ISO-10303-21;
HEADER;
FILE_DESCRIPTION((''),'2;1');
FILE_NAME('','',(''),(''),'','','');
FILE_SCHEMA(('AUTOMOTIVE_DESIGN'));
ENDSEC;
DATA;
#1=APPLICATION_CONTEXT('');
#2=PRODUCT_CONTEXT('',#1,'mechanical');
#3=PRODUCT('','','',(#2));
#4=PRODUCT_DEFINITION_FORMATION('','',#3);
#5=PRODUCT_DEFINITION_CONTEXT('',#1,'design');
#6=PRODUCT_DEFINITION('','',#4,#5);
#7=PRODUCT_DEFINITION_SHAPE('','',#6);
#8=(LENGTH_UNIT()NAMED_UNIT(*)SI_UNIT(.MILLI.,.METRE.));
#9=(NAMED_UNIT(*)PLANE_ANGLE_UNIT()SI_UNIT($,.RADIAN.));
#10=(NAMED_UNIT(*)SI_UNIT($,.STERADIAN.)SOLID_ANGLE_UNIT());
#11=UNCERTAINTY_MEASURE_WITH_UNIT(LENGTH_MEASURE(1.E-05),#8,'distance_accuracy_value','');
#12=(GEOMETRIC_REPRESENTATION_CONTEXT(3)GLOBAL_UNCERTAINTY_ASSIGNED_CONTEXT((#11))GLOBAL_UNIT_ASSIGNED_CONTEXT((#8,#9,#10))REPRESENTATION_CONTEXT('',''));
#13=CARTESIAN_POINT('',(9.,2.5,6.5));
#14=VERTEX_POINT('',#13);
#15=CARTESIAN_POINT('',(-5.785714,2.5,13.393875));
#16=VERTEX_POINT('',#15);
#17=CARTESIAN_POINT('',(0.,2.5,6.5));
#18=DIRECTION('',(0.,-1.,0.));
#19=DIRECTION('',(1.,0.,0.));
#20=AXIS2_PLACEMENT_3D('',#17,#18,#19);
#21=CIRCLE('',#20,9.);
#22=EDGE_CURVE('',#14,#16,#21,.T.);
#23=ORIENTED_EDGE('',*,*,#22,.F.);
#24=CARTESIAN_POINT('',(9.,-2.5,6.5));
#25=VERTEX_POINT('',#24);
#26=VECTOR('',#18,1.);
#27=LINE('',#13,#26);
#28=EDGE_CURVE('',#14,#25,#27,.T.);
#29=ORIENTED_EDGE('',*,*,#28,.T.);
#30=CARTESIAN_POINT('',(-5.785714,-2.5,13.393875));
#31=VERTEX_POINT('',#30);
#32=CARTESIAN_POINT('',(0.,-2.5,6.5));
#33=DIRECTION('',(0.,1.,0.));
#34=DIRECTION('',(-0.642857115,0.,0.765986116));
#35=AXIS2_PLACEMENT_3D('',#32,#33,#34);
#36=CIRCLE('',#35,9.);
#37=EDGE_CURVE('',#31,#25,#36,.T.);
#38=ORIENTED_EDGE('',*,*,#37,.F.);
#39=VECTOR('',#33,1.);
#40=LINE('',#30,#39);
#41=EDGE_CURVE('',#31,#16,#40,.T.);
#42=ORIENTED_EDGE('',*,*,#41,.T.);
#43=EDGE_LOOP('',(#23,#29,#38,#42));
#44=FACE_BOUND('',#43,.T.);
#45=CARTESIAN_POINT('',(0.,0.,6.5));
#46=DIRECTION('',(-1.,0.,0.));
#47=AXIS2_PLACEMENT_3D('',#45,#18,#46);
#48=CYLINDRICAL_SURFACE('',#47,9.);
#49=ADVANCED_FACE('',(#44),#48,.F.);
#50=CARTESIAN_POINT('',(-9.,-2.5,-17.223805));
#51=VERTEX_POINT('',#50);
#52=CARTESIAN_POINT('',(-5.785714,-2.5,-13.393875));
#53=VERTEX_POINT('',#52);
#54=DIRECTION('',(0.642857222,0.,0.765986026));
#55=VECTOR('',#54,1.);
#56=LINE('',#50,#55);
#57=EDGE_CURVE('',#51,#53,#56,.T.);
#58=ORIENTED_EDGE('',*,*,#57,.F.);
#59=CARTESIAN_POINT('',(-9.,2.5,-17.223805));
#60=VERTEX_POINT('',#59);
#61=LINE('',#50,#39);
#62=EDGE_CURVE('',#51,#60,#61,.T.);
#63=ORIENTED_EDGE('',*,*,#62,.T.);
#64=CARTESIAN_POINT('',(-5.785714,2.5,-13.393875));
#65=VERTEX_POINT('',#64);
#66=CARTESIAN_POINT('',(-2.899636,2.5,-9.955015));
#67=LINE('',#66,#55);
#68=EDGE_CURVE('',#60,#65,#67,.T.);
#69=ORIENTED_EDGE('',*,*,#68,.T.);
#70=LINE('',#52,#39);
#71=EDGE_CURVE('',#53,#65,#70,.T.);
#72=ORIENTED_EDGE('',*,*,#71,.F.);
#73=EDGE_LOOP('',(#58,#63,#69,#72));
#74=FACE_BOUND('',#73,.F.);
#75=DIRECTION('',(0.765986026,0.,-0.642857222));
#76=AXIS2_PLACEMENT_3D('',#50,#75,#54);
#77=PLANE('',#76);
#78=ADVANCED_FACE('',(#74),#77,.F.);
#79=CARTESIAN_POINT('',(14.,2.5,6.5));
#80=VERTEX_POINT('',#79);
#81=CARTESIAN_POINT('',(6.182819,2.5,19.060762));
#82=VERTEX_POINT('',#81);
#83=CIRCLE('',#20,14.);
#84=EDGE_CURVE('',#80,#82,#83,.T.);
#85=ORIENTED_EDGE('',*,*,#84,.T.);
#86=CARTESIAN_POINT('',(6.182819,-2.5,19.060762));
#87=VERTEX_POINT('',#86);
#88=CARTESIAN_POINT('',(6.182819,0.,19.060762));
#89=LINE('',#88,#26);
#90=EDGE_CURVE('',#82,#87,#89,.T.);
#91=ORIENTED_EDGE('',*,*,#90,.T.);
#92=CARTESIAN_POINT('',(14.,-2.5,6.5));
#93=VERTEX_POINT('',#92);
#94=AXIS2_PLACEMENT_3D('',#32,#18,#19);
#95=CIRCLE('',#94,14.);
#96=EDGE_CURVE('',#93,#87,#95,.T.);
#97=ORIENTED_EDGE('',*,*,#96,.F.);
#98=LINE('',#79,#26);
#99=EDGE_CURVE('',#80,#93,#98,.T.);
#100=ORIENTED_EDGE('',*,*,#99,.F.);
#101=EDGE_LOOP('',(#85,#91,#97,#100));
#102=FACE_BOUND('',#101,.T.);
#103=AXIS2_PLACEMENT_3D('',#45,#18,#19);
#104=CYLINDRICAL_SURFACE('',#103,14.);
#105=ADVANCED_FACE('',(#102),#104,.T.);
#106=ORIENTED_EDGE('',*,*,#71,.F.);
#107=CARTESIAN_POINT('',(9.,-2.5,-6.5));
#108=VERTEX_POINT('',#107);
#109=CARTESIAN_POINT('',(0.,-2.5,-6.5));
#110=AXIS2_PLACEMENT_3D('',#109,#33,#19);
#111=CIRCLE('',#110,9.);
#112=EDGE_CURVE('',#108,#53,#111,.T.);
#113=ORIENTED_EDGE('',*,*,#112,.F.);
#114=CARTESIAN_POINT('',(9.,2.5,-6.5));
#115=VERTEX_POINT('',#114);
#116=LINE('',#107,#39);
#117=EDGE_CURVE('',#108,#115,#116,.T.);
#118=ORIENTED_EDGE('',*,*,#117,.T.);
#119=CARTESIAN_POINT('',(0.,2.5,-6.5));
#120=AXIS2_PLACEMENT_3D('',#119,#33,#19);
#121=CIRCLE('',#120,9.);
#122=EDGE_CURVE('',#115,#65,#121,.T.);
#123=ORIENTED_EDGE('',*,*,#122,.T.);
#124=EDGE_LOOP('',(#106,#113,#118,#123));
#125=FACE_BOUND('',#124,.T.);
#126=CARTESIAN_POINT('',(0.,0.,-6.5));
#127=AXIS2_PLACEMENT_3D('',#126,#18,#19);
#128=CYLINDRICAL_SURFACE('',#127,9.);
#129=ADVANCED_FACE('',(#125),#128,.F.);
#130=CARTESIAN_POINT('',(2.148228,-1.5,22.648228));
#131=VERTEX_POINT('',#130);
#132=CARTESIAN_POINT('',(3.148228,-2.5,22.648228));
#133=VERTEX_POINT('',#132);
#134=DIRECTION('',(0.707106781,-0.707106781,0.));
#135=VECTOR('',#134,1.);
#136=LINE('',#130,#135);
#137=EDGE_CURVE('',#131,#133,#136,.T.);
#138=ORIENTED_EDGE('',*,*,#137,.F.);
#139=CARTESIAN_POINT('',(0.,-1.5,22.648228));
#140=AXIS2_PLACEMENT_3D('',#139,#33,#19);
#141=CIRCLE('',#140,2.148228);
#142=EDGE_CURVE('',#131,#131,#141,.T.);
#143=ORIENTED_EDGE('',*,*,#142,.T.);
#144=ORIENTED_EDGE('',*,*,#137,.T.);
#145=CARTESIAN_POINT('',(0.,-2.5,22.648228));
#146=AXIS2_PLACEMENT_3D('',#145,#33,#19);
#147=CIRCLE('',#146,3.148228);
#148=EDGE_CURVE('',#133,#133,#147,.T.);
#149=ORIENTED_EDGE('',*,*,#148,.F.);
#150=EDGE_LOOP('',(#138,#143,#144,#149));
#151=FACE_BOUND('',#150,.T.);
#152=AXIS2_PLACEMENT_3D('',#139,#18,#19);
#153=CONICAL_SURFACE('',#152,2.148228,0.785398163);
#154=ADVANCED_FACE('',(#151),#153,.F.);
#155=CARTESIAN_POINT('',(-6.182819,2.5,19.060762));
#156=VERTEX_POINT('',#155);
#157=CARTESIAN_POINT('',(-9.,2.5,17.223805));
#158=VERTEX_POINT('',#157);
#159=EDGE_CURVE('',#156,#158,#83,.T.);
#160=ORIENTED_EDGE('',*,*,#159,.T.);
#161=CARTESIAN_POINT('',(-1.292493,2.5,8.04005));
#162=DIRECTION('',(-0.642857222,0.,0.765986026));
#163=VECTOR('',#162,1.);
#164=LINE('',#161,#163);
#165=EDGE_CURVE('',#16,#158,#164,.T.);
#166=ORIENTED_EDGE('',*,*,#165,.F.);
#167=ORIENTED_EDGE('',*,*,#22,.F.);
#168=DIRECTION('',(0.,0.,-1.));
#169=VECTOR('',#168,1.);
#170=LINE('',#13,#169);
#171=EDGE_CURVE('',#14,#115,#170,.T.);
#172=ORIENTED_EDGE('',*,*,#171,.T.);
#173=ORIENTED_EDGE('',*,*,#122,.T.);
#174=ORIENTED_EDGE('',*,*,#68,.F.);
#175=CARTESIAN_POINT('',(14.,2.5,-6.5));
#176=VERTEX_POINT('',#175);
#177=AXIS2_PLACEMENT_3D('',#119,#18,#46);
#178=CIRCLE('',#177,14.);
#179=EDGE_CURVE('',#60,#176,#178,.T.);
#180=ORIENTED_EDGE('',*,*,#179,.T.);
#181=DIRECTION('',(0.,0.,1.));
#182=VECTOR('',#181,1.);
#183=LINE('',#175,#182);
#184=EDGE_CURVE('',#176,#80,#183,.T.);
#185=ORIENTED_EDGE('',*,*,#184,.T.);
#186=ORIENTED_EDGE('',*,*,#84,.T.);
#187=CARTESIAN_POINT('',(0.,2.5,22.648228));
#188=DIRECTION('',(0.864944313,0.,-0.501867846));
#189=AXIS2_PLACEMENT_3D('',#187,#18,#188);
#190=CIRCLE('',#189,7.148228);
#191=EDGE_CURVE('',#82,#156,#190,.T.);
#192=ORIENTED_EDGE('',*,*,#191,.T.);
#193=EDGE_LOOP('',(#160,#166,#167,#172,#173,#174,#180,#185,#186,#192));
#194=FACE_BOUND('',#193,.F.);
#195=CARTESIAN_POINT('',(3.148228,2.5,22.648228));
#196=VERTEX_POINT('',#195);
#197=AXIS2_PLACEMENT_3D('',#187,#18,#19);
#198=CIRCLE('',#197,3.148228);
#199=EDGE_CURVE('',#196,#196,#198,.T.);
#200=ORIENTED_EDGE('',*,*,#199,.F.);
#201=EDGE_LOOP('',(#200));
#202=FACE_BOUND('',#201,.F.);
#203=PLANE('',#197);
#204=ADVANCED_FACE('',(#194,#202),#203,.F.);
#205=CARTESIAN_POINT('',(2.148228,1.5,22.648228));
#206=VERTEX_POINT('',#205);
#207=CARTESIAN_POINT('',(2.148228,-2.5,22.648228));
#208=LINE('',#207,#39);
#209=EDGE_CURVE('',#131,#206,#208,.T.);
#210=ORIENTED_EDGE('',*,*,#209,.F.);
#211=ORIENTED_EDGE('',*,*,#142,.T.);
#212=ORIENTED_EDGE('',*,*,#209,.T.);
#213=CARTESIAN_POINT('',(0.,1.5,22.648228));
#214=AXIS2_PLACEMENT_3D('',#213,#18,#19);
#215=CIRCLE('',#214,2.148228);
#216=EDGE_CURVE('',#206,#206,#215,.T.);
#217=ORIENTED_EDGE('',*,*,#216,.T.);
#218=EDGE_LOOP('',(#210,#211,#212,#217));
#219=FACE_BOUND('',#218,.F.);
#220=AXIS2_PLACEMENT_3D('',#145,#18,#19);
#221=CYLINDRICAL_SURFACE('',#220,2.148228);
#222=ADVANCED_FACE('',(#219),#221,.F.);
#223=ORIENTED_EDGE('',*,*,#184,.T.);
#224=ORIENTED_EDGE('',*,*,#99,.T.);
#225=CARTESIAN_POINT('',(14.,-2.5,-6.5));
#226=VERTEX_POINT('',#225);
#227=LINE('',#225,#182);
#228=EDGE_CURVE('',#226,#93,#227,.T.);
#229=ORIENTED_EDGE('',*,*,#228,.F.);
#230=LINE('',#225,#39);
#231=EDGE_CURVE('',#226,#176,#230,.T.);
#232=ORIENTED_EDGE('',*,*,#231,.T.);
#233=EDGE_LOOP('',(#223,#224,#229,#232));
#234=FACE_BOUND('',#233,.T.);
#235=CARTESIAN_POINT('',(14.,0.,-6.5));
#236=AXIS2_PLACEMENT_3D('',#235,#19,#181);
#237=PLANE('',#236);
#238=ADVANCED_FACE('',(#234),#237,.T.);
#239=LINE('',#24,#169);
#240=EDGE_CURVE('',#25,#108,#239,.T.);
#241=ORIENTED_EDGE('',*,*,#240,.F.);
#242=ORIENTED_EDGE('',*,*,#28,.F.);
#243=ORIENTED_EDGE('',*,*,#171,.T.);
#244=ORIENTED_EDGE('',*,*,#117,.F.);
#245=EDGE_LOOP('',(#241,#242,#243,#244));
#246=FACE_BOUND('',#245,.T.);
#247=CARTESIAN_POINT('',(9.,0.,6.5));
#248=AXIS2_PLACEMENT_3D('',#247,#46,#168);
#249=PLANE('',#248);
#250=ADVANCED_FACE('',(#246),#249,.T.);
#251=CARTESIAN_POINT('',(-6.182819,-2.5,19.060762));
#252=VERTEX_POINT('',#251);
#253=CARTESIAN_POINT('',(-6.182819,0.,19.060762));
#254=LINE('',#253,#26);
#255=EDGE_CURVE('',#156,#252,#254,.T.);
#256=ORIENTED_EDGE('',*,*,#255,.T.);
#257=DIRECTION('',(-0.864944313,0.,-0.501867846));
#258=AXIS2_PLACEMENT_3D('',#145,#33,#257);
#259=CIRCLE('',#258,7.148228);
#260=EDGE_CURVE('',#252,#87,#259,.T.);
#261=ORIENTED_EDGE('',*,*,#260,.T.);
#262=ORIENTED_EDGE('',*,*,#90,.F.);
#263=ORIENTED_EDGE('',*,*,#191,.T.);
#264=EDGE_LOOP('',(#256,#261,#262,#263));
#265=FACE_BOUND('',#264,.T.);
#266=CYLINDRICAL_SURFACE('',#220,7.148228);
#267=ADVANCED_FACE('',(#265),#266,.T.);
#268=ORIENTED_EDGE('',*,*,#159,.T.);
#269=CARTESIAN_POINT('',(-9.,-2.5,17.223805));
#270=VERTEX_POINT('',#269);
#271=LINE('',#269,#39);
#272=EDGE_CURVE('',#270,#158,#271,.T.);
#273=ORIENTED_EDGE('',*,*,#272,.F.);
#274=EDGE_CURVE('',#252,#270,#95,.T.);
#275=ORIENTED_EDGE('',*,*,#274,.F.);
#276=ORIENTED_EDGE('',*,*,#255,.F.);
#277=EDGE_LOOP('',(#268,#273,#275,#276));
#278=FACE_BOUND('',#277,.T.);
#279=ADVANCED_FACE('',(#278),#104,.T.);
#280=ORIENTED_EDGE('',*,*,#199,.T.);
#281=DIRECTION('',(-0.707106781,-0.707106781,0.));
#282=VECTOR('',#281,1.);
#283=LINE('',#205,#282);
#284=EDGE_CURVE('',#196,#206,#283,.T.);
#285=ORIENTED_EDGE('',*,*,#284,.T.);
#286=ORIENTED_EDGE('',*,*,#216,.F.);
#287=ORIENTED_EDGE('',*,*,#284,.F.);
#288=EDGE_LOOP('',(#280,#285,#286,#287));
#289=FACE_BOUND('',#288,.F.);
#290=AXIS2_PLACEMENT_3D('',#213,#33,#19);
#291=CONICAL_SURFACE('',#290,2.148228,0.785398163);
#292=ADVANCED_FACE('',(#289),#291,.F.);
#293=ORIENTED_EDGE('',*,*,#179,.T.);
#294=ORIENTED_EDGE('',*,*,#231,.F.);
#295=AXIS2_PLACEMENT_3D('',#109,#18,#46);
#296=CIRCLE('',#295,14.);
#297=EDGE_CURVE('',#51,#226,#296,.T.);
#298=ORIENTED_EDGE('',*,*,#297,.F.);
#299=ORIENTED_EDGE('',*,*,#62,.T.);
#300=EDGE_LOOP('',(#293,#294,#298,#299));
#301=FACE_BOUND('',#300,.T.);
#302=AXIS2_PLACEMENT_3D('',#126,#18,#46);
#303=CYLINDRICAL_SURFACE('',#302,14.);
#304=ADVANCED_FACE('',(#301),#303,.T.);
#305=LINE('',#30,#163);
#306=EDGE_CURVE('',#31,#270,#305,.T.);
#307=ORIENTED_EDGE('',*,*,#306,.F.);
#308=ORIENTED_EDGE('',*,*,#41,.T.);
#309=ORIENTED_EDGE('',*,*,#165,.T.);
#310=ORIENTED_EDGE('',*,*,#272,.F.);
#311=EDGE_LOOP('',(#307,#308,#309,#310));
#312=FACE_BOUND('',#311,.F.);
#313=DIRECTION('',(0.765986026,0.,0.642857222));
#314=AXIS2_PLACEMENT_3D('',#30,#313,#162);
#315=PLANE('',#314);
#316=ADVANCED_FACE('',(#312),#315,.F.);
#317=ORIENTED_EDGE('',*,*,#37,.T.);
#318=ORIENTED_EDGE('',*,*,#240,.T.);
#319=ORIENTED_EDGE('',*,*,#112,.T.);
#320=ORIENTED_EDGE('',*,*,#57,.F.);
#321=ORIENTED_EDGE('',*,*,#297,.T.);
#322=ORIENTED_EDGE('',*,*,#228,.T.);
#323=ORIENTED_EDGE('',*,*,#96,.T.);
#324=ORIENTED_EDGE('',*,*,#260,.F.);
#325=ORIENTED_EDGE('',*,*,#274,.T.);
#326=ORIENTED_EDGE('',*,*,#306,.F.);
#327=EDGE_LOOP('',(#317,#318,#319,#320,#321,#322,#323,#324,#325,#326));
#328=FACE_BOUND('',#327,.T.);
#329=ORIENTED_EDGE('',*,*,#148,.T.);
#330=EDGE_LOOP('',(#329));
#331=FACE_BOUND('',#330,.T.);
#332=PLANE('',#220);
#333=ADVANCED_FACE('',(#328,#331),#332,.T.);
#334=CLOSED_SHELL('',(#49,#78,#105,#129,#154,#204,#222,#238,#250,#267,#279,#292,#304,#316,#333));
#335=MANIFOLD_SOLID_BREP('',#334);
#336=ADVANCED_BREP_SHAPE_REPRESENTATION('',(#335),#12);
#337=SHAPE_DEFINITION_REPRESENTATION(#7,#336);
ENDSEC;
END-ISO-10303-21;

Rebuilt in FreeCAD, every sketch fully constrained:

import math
import FreeCAD as App
import Part
import Sketcher
Q = App.Units.Quantity


def edges_at(feature, points):
    """Names of the edges that pass closest to the given points."""
    edges = feature.Shape.Edges
    near = lambda p: min(range(len(edges)), key=lambda i: edges[i].distToShape(Part.Vertex(*p))[0])
    return sorted({f"Edge{near(p) + 1}" for p in points})

doc = App.newDocument("Part")
body = doc.addObject("PartDesign::Body", "Body")

# Sketch on XZ plane
sketch1 = doc.addObject("Sketcher::SketchObject", "Sketch")
body.addObject(sketch1)
sketch1.AttachmentSupport = (doc.XZ_Plane, [""])
sketch1.MapMode = "FlatFace"
sketch1.addGeometry(Part.LineSegment(App.Vector(14, -6.5, 0), App.Vector(14, 6.5, 0)), False)
sketch1.addGeometry(Part.ArcOfCircle(Part.Circle(App.Vector(0, 6.5, 0), App.Vector(0, 0, 1), 14), math.radians(0), math.radians(180)), False)
sketch1.addGeometry(Part.LineSegment(App.Vector(-14, 6.5, 0), App.Vector(-14, -6.5, 0)), False)
sketch1.addGeometry(Part.ArcOfCircle(Part.Circle(App.Vector(0, -6.5, 0), App.Vector(0, 0, 1), 14), math.radians(180), math.radians(360)), False)
sketch1.addGeometry(Part.ArcOfCircle(Part.Circle(App.Vector(0, 6.5, 0), App.Vector(0, 0, 1), 9), math.radians(0), math.radians(180)), False)
sketch1.addGeometry(Part.LineSegment(App.Vector(9, 6.5, 0), App.Vector(9, -6.5, 0)), False)
sketch1.addGeometry(Part.ArcOfCircle(Part.Circle(App.Vector(0, -6.5, 0), App.Vector(0, 0, 1), 9), math.radians(180), math.radians(360)), False)
sketch1.addGeometry(Part.LineSegment(App.Vector(-9, -6.5, 0), App.Vector(-9, 6.5, 0)), False)
sketch1.addConstraint(Sketcher.Constraint("Tangent", 0, 2, 1, 1))
sketch1.addConstraint(Sketcher.Constraint("Tangent", 1, 2, 2, 1))
sketch1.addConstraint(Sketcher.Constraint("Tangent", 2, 2, 3, 1))
sketch1.addConstraint(Sketcher.Constraint("Tangent", 3, 2, 0, 1))
sketch1.addConstraint(Sketcher.Constraint("Tangent", 4, 1, 5, 1))
sketch1.addConstraint(Sketcher.Constraint("Tangent", 5, 2, 6, 2))
sketch1.addConstraint(Sketcher.Constraint("Tangent", 6, 1, 7, 1))
sketch1.addConstraint(Sketcher.Constraint("Tangent", 7, 2, 4, 2))
sketch1.addConstraint(Sketcher.Constraint("Vertical", 0))
sketch1.addConstraint(Sketcher.Constraint("Vertical", 2))
sketch1.addConstraint(Sketcher.Constraint("Vertical", 5))
sketch1.addConstraint(Sketcher.Constraint("Vertical", 7))
sketch1.addConstraint(Sketcher.Constraint("Coincident", 4, 3, 1, 3))
sketch1.addConstraint(Sketcher.Constraint("Symmetric", 1, 3, 3, 3, -1, 1))
sketch1.addConstraint(Sketcher.Constraint("Horizontal", 6, 3, 2, 2))
sketch1.addConstraint(Sketcher.Constraint("Radius", 1, Q("14 mm")))
sketch1.addConstraint(Sketcher.Constraint("Radius", 4, Q("9 mm")))
sketch1.addConstraint(Sketcher.Constraint("DistanceY", 0, 1, 0, 2, Q("13 mm")))
pad1 = doc.addObject("PartDesign::Pad", "Pad")
body.addObject(pad1)
pad1.Profile = sketch1
pad1.Length = 5
pad1.Midplane = True

# Sketch on XZ plane
sketch2 = doc.addObject("Sketcher::SketchObject", "Sketch001")
body.addObject(sketch2)
sketch2.AttachmentSupport = (doc.XZ_Plane, [""])
sketch2.MapMode = "FlatFace"
sketch2.AttachmentOffset = App.Placement(App.Vector(0, 0, 2.5), App.Rotation())
sketch2.addGeometry(Part.LineSegment(App.Vector(-5.785714, 13.393875, 0), App.Vector(-9, 17.223805, 0)), False)
sketch2.addGeometry(Part.ArcOfCircle(Part.Circle(App.Vector(-0.000006, 6.500003, 0), App.Vector(0, 0, 1), 13.999994), math.radians(130.005189), math.radians(180.00001)), False)
sketch2.addGeometry(Part.LineSegment(App.Vector(-14, 6.5, 0), App.Vector(-14, -6.5, 0)), False)
sketch2.addGeometry(Part.ArcOfCircle(Part.Circle(App.Vector(-0.000006, -6.500003, 0), App.Vector(0, 0, 1), 13.999994), math.radians(179.99999), math.radians(229.994811)), False)
sketch2.addGeometry(Part.LineSegment(App.Vector(-9, -17.223805, 0), App.Vector(-5.785714, -13.393875, 0)), False)
sketch2.addGeometry(Part.ArcOfCircle(Part.Circle(App.Vector(-0.000002, -6.500001, 0), App.Vector(0, 0, 1), 8.999998), math.radians(179.999994), math.radians(229.994808)), False)
sketch2.addGeometry(Part.LineSegment(App.Vector(-9, -6.5, 0), App.Vector(-9, 6.5, 0)), False)
sketch2.addGeometry(Part.ArcOfCircle(Part.Circle(App.Vector(-0.000002, 6.500001, 0), App.Vector(0, 0, 1), 8.999998), math.radians(130.005192), math.radians(180.000006)), False)
sketch2.addConstraint(Sketcher.Constraint("Coincident", 0, 2, 1, 1))
sketch2.addConstraint(Sketcher.Constraint("Tangent", 1, 2, 2, 1))
sketch2.addConstraint(Sketcher.Constraint("Tangent", 2, 2, 3, 1))
sketch2.addConstraint(Sketcher.Constraint("Coincident", 3, 2, 4, 1))
sketch2.addConstraint(Sketcher.Constraint("Coincident", 4, 2, 5, 2))
sketch2.addConstraint(Sketcher.Constraint("Tangent", 5, 1, 6, 1))
sketch2.addConstraint(Sketcher.Constraint("Tangent", 6, 2, 7, 2))
sketch2.addConstraint(Sketcher.Constraint("Coincident", 7, 1, 0, 1))
sketch2.addConstraint(Sketcher.Constraint("Vertical", 2))
sketch2.addConstraint(Sketcher.Constraint("Vertical", 6))
sketch2.addConstraint(Sketcher.Constraint("Coincident", 5, 3, 3, 3))
sketch2.addConstraint(Sketcher.Constraint("Coincident", 7, 3, 1, 3))
sketch2.addConstraint(Sketcher.Constraint("Equal", 1, 3))
sketch2.addConstraint(Sketcher.Constraint("Symmetric", 1, 3, 5, 3, -1, 1))
sketch2.addConstraint(Sketcher.Constraint("Vertical", 0, 2, 3, 2))
sketch2.addConstraint(Sketcher.Constraint("Vertical", 3, 2, 5, 1))
sketch2.addConstraint(Sketcher.Constraint("Vertical", 4, 2, 7, 1))
sketch2.addConstraint(Sketcher.Constraint("DistanceY", 2, 2, 2, 1, Q("13 mm")))
sketch2.addConstraint(Sketcher.Constraint("Distance", 0, Q("5 mm")))
sketch2.addConstraint(Sketcher.Constraint("DistanceX", 0, 2, -1, 1, Q("9 mm")))
sketch2.addConstraint(Sketcher.Constraint("DistanceY", 3, 2, 4, 2, Q("3.82993 mm")))
pocket1 = doc.addObject("PartDesign::Pocket", "Pocket")
body.addObject(pocket1)
pocket1.Profile = sketch2
pocket1.Type = "ThroughAll"

# Sketch on XZ plane
sketch3 = doc.addObject("Sketcher::SketchObject", "Sketch002")
body.addObject(sketch3)
sketch3.AttachmentSupport = (doc.XZ_Plane, [""])
sketch3.MapMode = "FlatFace"
sketch3.AttachmentOffset = App.Placement(App.Vector(0, 0, 2.5), App.Rotation())
sketch3.addGeometry(Part.Circle(App.Vector(0, 22.648228, 0), App.Vector(0, 0, 1), 7.148228), False)
sketch3.addGeometry(Part.Circle(App.Vector(0, 22.648228, 0), App.Vector(0, 0, 1), 2.148228), False)
sketch3.addConstraint(Sketcher.Constraint("Coincident", 1, 3, 0, 3))
sketch3.addConstraint(Sketcher.Constraint("PointOnObject", 0, 3, -2))
sketch3.addConstraint(Sketcher.Constraint("Diameter", 0, Q("14.296456 mm")))
sketch3.addConstraint(Sketcher.Constraint("Diameter", 1, Q("4.296456 mm")))
sketch3.addConstraint(Sketcher.Constraint("DistanceY", -1, 1, 0, 3, Q("22.648228 mm")))
pad2 = doc.addObject("PartDesign::Pad", "Pad001")
body.addObject(pad2)
pad2.Profile = sketch3
pad2.Length = 5
pad2.Reversed = True
doc.recompute()

chamfer = doc.addObject("PartDesign::Chamfer", "Chamfer")
body.addObject(chamfer)
chamfer.Base = (pad2, edges_at(pad2, [(2.148, 0, 22.648), (-2.148, -2.5, 22.648), (-2.148, 2.5, 22.648)]))
chamfer.Size = 1

doc.recompute()
